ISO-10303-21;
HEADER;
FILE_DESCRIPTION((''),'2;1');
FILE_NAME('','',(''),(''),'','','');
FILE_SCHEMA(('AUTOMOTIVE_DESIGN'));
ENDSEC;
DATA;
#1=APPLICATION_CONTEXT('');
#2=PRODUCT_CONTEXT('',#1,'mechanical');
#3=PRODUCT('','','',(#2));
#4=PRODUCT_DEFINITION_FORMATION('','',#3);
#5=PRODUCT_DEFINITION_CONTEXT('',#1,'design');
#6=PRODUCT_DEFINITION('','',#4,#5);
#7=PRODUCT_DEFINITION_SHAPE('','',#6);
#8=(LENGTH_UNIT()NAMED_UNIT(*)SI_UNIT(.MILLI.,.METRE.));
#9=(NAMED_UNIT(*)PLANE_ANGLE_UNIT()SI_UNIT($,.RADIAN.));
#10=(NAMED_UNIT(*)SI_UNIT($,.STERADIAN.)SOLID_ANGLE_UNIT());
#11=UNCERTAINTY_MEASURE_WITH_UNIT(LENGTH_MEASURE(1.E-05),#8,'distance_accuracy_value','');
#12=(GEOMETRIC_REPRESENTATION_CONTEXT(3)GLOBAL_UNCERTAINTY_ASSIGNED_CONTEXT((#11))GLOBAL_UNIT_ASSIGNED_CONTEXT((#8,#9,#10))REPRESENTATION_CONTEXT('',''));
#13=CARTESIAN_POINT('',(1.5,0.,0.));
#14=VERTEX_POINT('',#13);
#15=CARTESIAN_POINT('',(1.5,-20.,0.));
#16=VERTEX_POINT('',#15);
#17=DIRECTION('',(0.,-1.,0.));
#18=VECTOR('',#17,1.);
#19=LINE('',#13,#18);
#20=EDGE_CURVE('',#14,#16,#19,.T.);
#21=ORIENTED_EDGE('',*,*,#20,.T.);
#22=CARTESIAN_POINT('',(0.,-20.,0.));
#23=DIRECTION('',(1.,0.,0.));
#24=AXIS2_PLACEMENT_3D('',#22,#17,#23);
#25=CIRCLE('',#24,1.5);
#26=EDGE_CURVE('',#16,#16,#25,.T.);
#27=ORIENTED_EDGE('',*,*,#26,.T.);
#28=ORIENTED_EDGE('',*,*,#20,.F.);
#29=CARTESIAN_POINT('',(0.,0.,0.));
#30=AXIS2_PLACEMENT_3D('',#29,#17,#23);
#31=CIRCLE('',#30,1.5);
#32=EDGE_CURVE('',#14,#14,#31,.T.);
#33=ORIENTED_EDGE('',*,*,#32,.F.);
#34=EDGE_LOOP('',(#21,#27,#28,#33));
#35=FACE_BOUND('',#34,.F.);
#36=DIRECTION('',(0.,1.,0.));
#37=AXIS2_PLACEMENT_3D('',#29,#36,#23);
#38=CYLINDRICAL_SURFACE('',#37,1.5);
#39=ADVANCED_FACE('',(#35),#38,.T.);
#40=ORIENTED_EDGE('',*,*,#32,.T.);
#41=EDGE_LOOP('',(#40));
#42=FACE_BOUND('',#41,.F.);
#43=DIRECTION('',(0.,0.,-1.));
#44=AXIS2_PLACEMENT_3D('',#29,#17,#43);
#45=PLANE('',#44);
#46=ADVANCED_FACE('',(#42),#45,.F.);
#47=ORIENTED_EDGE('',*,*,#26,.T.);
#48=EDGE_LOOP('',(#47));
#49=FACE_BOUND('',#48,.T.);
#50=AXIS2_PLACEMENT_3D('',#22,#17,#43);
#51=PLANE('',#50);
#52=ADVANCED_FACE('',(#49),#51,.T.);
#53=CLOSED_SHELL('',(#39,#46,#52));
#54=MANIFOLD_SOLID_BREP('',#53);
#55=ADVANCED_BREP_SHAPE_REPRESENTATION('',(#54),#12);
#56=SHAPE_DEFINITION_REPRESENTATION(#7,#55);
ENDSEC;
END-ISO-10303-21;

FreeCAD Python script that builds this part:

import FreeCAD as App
import Part
import Sketcher
from FreeCAD import Vector
Q = App.Units.Quantity

doc = App.newDocument("Part")
body = doc.addObject("PartDesign::Body", "Body")

sketch1 = body.newObject("Sketcher::SketchObject", "Sketch")
sketch1.AttachmentSupport = (doc.getObject("XZ_Plane"), [""])
sketch1.MapMode = "FlatFace"
sketch1.addGeometry(Part.Circle(Vector(0, 0, 0), Vector(0, 0, 1), 1.5), False)
sketch1.addConstraint([
    Sketcher.Constraint("Coincident", 0, 3, -1, 1),
    Sketcher.Constraint("Diameter", 0, Q("3 mm")),
])
pad1 = body.newObject("PartDesign::Pad", "Pad")
pad1.Profile = sketch1
pad1.Length = 20

doc.recompute()
